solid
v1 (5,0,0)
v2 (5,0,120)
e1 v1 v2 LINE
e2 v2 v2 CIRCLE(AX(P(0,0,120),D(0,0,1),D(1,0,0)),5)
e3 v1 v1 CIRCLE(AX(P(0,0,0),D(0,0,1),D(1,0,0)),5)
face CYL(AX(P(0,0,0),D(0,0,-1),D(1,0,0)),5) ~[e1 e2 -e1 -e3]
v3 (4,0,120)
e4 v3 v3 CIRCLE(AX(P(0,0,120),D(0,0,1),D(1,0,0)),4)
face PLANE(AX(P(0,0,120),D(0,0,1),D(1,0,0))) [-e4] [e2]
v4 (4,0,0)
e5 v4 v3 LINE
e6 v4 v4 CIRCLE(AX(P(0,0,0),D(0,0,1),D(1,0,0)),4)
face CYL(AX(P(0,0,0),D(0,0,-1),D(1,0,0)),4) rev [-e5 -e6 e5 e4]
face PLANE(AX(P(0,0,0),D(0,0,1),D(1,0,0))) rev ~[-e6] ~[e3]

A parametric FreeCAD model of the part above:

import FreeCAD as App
import Part
import Sketcher
from FreeCAD import Vector
Q = App.Units.Quantity

doc = App.newDocument("Part")
params = doc.addObject("Spreadsheet::Sheet", "Params")
for row, (alias, value) in enumerate([
    ("sketch1_diameter", "10 mm"),
    ("sketch1_diameter2", "8 mm"),
    ("pad1_length", "120 mm"),
], start=1):
    params.set(f"A{row}", alias)
    params.set(f"B{row}", "=" + value)
    params.setAlias(f"B{row}", alias)

body = doc.addObject("PartDesign::Body", "Body")

sketch1 = body.newObject("Sketcher::SketchObject", "Sketch")
sketch1.AttachmentSupport = (doc.getObject("XY_Plane"), [""])
sketch1.MapMode = "FlatFace"
sketch1.addGeometry(Part.Circle(Vector(0, 0, 0), Vector(0, 0, 1), 5), False)
sketch1.addGeometry(Part.Circle(Vector(0, 0, 0), Vector(0, 0, 1), 4), False)
sketch1.addConstraint(Sketcher.Constraint("Coincident", 0, 3, -1, 1))
sketch1.addConstraint(Sketcher.Constraint("Coincident", 1, 3, -1, 1))
sketch1.addConstraint(Sketcher.Constraint("Diameter", 0, Q("10 mm")))
sketch1.addConstraint(Sketcher.Constraint("Diameter", 1, Q("8 mm")))
sketch1.setExpression("Constraints[2]", "Params.sketch1_diameter")
sketch1.setExpression("Constraints[3]", "Params.sketch1_diameter2")
pad1 = body.newObject("PartDesign::Pad", "Pad")
pad1.Profile = sketch1
pad1.setExpression("Length", "Params.pad1_length")

doc.recompute()
